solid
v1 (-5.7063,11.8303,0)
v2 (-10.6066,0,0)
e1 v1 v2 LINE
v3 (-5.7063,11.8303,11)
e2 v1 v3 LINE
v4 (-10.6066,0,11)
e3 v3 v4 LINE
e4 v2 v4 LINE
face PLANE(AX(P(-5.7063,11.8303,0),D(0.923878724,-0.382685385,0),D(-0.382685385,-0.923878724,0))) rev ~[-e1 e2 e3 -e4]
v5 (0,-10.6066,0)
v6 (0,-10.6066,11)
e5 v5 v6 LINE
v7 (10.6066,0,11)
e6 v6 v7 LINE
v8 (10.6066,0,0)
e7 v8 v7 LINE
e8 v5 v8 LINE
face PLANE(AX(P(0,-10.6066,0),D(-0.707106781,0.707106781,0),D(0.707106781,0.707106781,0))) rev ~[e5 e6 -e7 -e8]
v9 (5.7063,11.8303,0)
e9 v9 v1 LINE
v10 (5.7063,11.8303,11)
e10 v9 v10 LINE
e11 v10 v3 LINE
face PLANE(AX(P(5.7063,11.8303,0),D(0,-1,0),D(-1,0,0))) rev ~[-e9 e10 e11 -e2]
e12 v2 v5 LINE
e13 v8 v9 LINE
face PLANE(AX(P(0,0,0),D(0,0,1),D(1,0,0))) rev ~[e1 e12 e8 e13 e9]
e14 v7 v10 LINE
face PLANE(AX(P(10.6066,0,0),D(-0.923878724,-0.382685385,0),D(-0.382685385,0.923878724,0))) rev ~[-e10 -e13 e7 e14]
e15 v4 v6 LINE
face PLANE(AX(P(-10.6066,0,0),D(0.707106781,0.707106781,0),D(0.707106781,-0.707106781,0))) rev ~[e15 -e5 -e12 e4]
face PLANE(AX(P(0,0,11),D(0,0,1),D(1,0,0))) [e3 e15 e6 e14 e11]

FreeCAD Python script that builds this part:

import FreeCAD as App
import Part
import Sketcher

V = App.Vector
Q = App.Units.Quantity


def add_polygon(sketch, points):
    """Adds a closed chain of lines whose ends are joined by coincident constraints."""
    first, n = sketch.GeometryCount, len(points)
    for a, b in zip(points, points[1:] + points[:1]):
        sketch.addGeometry(Part.LineSegment(App.Vector(*a, 0), App.Vector(*b, 0)), False)
    for i in range(n):
        sketch.addConstraint(Sketcher.Constraint("Coincident", first + i, 2, first + (i + 1) % n, 1))

doc = App.newDocument("Part")
body = doc.addObject("PartDesign::Body", "Body")

# Sketch on XY plane
sketch1 = body.newObject("Sketcher::SketchObject", "Sketch")
sketch1.AttachmentSupport = (doc.getObject("XY_Plane"), [""])
sketch1.MapMode = "FlatFace"
add_polygon(sketch1, [(-11, 0), (0, -11), (11, 0), (6, 12), (-6, 12)])  # lines 0-4
sketch1.addConstraint([
    Sketcher.Constraint("Horizontal", 3),
    Sketcher.Constraint("Symmetric", 1, 2, 4, 2, -1, 1),
    Sketcher.Constraint("PointOnObject", 0, 2, -2),
    Sketcher.Constraint("PointOnObject", 1, 2, -1),
    Sketcher.Constraint("Perpendicular", 0, 1),
    Sketcher.Constraint("Equal", 2, 4),
    Sketcher.Constraint("Distance", 0, 15.0),
    Sketcher.Constraint("Angle", 2, Q("112.5001 deg")),
    Sketcher.Constraint("Distance", 2, 12.805),
])
pad1 = body.newObject("PartDesign::Pad", "Pad")
pad1.Profile = sketch1
pad1.Length = 11

doc.recompute()
